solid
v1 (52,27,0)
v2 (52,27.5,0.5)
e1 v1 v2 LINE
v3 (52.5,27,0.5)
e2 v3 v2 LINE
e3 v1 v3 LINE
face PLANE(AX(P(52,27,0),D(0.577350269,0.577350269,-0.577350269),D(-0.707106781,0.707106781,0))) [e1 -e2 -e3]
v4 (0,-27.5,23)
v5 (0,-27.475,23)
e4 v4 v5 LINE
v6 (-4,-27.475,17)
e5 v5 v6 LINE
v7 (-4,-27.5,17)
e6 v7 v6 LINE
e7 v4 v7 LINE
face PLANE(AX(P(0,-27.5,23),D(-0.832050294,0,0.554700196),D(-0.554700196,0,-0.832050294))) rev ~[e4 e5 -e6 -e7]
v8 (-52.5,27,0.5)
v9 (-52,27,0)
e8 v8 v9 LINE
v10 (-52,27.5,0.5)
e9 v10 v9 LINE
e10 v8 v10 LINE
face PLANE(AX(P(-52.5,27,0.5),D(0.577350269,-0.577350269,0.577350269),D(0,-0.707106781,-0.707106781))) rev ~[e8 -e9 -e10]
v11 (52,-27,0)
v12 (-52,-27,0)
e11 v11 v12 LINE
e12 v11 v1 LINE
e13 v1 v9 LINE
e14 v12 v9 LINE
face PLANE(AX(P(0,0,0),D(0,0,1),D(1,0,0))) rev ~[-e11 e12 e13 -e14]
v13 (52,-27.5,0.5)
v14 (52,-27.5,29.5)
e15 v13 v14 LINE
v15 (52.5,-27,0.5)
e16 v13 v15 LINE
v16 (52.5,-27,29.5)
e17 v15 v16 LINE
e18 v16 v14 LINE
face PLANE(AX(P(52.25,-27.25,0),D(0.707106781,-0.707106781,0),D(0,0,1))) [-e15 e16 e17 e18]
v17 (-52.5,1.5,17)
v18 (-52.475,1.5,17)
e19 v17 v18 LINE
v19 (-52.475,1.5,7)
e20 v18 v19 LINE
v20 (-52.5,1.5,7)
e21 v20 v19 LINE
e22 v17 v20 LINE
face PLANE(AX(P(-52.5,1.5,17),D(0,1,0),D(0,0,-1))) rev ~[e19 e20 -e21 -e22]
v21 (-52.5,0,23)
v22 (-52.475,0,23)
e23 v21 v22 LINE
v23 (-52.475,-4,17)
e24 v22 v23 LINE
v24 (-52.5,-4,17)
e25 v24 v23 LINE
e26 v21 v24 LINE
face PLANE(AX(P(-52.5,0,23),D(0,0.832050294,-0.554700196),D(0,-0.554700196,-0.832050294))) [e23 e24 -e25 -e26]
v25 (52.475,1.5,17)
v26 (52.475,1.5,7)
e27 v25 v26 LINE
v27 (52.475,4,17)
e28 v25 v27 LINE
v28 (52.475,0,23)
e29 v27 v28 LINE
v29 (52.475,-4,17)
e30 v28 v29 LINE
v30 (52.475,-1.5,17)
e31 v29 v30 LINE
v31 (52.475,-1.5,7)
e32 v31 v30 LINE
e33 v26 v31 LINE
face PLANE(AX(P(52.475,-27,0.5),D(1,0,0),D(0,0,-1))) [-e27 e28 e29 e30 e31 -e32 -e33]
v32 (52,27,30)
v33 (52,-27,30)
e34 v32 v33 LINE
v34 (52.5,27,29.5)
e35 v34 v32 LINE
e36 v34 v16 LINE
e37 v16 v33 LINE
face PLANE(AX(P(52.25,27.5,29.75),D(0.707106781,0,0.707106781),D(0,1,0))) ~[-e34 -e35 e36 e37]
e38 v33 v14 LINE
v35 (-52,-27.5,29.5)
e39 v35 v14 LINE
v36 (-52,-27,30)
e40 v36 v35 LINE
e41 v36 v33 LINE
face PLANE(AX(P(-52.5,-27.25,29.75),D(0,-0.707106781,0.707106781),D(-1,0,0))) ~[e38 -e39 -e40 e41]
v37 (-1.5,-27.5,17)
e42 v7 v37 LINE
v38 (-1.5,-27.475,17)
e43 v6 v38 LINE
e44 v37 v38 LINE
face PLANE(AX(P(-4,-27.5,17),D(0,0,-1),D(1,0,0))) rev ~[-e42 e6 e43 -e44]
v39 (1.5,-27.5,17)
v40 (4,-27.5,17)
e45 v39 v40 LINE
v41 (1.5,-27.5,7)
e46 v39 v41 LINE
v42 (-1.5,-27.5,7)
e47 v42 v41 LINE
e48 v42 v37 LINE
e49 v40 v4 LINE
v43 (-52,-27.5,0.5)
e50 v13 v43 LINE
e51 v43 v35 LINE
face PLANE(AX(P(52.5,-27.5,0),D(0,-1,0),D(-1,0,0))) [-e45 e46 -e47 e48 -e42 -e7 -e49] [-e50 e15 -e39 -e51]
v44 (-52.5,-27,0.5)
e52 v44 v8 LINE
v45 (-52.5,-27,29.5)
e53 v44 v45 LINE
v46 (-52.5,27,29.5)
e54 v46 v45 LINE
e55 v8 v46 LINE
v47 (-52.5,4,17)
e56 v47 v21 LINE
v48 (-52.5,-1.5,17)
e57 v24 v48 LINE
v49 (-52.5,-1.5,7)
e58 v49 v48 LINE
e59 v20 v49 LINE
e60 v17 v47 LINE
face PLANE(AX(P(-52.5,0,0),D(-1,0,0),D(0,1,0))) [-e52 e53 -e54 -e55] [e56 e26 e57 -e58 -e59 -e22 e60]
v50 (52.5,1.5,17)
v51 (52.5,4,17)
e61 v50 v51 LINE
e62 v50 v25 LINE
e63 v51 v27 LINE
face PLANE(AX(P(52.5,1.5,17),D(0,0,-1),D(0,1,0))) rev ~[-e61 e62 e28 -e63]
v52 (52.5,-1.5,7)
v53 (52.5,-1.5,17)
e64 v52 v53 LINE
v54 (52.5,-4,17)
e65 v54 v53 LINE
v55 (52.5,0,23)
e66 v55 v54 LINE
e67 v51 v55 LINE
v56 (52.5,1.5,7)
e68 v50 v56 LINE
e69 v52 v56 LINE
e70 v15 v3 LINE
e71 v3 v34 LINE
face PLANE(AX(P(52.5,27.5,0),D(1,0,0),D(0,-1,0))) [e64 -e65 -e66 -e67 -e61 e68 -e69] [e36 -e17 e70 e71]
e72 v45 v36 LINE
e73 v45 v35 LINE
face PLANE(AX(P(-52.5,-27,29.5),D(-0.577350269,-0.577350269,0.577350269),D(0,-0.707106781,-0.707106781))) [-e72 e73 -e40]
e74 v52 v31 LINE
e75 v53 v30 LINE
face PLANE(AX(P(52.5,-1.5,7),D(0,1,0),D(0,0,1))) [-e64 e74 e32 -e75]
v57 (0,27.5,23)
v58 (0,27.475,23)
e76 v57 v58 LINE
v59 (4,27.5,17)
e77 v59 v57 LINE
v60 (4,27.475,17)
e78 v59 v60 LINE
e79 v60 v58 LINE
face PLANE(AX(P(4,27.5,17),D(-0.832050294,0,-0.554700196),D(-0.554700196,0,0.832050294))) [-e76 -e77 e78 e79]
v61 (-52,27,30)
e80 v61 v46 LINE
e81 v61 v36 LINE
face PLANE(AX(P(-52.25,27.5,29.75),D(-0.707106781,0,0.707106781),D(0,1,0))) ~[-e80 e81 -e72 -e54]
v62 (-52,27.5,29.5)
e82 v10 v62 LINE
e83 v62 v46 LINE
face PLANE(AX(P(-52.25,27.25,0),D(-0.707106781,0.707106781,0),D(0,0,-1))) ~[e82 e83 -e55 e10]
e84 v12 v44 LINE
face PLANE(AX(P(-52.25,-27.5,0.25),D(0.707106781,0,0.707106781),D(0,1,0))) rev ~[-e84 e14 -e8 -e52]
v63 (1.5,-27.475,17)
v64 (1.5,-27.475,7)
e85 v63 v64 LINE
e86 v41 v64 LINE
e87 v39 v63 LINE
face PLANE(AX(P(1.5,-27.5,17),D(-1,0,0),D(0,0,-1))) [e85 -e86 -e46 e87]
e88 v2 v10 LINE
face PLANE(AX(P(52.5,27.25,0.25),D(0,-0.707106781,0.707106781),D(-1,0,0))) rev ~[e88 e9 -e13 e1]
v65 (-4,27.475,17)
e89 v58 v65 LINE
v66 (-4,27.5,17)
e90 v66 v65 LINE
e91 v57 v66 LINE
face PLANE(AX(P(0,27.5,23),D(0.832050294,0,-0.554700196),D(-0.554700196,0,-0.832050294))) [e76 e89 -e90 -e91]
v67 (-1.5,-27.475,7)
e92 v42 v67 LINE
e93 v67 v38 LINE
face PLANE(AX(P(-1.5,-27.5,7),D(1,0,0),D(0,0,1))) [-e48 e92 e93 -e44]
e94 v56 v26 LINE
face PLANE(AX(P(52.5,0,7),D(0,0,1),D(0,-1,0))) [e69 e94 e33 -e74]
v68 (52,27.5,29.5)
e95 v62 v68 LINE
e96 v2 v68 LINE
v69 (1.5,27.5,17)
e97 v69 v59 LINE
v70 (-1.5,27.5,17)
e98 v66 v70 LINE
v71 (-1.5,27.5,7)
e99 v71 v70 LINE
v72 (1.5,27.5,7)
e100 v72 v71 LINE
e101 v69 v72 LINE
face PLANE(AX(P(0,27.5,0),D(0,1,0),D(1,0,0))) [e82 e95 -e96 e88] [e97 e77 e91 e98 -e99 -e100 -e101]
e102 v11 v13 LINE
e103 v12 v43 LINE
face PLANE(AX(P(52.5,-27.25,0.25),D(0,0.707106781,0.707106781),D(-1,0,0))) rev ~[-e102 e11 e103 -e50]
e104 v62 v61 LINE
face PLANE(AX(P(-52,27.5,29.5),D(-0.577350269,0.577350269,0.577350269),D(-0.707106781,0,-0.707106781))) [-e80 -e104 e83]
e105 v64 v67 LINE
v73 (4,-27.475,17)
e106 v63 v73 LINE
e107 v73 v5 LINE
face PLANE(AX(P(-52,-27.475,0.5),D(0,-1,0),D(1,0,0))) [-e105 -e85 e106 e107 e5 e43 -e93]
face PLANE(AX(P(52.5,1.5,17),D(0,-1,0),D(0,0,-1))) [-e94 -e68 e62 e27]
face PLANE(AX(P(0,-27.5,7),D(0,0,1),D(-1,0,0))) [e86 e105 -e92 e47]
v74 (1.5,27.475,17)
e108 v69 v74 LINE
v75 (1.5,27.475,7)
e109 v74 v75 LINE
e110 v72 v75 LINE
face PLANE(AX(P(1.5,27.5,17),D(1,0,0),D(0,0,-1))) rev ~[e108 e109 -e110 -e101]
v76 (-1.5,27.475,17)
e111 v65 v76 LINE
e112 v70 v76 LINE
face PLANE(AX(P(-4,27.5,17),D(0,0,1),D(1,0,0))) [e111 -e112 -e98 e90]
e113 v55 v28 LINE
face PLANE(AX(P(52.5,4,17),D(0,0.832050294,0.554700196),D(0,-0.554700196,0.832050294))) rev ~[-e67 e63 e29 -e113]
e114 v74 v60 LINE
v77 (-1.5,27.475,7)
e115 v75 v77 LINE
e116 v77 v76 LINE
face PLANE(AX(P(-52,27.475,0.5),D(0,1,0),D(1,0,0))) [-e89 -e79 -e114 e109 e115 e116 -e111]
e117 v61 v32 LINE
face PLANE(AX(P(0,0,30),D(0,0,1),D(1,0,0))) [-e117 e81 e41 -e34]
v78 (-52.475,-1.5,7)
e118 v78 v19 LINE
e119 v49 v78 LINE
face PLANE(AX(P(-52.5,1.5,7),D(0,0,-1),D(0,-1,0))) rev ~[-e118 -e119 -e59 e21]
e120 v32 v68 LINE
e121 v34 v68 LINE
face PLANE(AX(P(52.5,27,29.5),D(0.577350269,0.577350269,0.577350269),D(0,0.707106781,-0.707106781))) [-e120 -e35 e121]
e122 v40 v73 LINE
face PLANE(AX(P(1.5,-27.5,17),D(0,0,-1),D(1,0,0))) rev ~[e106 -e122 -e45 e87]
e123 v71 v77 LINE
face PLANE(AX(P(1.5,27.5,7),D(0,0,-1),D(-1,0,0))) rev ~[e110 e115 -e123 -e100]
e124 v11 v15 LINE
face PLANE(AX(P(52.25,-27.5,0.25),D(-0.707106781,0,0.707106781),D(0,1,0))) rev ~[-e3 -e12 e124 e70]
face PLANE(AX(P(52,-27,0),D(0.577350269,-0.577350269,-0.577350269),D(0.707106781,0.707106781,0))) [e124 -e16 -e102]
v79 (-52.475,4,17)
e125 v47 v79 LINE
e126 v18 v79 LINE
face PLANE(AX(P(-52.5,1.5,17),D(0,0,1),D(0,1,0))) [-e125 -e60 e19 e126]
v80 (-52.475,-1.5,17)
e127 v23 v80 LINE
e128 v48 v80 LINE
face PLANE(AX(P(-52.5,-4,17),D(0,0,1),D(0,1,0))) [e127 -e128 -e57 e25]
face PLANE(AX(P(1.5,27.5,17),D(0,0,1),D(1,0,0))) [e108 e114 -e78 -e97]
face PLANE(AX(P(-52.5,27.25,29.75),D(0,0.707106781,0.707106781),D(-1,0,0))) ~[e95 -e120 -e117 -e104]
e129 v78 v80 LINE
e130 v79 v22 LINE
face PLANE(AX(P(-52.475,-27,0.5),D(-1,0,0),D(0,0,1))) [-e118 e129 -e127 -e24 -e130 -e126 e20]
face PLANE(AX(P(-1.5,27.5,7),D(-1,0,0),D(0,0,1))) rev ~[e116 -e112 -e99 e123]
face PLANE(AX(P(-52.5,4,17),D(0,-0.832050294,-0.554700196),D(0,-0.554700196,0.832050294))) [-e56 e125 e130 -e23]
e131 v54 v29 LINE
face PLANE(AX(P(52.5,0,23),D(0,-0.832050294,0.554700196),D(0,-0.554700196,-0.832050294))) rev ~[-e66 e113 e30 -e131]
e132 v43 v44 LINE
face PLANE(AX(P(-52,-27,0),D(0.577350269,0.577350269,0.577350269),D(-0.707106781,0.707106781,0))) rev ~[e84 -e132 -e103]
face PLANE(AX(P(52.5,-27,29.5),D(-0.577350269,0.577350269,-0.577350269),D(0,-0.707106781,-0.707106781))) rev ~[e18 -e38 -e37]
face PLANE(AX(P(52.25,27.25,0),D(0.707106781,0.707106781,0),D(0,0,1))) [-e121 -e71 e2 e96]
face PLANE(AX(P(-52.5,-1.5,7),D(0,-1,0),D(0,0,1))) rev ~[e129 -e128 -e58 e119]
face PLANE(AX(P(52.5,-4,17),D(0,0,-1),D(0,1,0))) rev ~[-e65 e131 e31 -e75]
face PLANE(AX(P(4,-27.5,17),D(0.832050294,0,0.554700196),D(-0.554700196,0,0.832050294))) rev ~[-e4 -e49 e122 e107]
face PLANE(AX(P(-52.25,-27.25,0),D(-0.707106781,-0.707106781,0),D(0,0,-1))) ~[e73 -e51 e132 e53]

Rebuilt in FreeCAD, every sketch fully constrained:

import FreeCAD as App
import Part
import Sketcher
Q = App.Units.Quantity

doc = App.newDocument("Part")
body = doc.addObject("PartDesign::Body", "Body")

# Sketch on XY plane
sketch1 = body.newObject("Sketcher::SketchObject", "Sketch")
sketch1.AttachmentSupport = (doc.getObject("XY_Plane"), [""])
sketch1.MapMode = "FlatFace"
sketch1.addGeometry([
    Part.LineSegment(App.Vector(52.5, 27.5, 0), App.Vector(-52.5, 27.5, 0)),
    Part.LineSegment(App.Vector(-52.5, 27.5, 0), App.Vector(-52.5, -27.5, 0)),
    Part.LineSegment(App.Vector(-52.5, -27.5, 0), App.Vector(52.5, -27.5, 0)),
    Part.LineSegment(App.Vector(52.5, -27.5, 0), App.Vector(52.5, 27.5, 0)),
], False)
sketch1.addConstraint([
    Sketcher.Constraint("Coincident", 0, 2, 1, 1),
    Sketcher.Constraint("Coincident", 1, 2, 2, 1),
    Sketcher.Constraint("Coincident", 2, 2, 3, 1),
    Sketcher.Constraint("Coincident", 3, 2, 0, 1),
    Sketcher.Constraint("Horizontal", 0),
    Sketcher.Constraint("Vertical", 1),
    Sketcher.Constraint("Horizontal", 2),
    Sketcher.Constraint("Vertical", 3),
    Sketcher.Constraint("Symmetric", 0, 2, 2, 2, -1, 1),
    Sketcher.Constraint("DistanceX", 0, 2, 0, 1, Q("105 mm")),
    Sketcher.Constraint("DistanceY", 1, 2, 1, 1, Q("55 mm")),
])
pad1 = body.newObject("PartDesign::Pad", "Pad")
pad1.Profile = sketch1
pad1.Length = 30
doc.recompute()

chamfer = body.newObject("PartDesign::Chamfer", "Chamfer")
chamfer.Base = (pad1, ["Edge1"])
chamfer.UseAllEdges = True
chamfer.Size = 0.5

# Sketch on XZ plane
sketch2 = body.newObject("Sketcher::SketchObject", "Sketch001")
sketch2.AttachmentSupport = (doc.getObject("XZ_Plane"), [""])
sketch2.MapMode = "FlatFace"
sketch2.AttachmentOffset = App.Placement(App.Vector(0, 0, 27.5), App.Rotation())
sketch2.addGeometry([
    Part.LineSegment(App.Vector(-4, 17, 0), App.Vector(-1.5, 17, 0)),  # 0
    Part.LineSegment(App.Vector(-1.5, 17, 0), App.Vector(-1.5, 7, 0)),  # 1
    Part.LineSegment(App.Vector(-1.5, 7, 0), App.Vector(1.5, 7, 0)),  # 2
    Part.LineSegment(App.Vector(1.5, 7, 0), App.Vector(1.5, 17, 0)),  # 3
    Part.LineSegment(App.Vector(1.5, 17, 0), App.Vector(4, 17, 0)),  # 4
    Part.LineSegment(App.Vector(4, 17, 0), App.Vector(0, 23, 0)),  # 5
    Part.LineSegment(App.Vector(0, 23, 0), App.Vector(-4, 17, 0)),  # 6
], False)
sketch2.addConstraint([
    Sketcher.Constraint("Coincident", 0, 2, 1, 1),
    Sketcher.Constraint("Coincident", 1, 2, 2, 1),
    Sketcher.Constraint("Coincident", 2, 2, 3, 1),
    Sketcher.Constraint("Coincident", 3, 2, 4, 1),
    Sketcher.Constraint("Coincident", 4, 2, 5, 1),
    Sketcher.Constraint("Coincident", 5, 2, 6, 1),
    Sketcher.Constraint("Coincident", 6, 2, 0, 1),
    Sketcher.Constraint("Horizontal", 0),
    Sketcher.Constraint("Vertical", 1),
    Sketcher.Constraint("Horizontal", 2),
    Sketcher.Constraint("Vertical", 3),
    Sketcher.Constraint("Horizontal", 4),
    Sketcher.Constraint("Symmetric", 0, 2, 3, 2, -2),
    Sketcher.Constraint("PointOnObject", 5, 2, -2),
    Sketcher.Constraint("Equal", 0, 4),
    Sketcher.Constraint("DistanceX", 2, 1, 2, 2, Q("3 mm")),
    Sketcher.Constraint("DistanceY", 1, 2, 1, 1, Q("10 mm")),
    Sketcher.Constraint("DistanceY", -1, 1, 1, 2, Q("7 mm")),
    Sketcher.Constraint("DistanceX", -1, 1, 4, 2, Q("4 mm")),
    Sketcher.Constraint("DistanceY", 0, 2, 5, 2, Q("6 mm")),
])
pocket1 = body.newObject("PartDesign::Pocket", "Pocket")
pocket1.Profile = sketch2
pocket1.Length = 0.025

# Sketch on XZ plane
sketch3 = body.newObject("Sketcher::SketchObject", "Sketch002")
sketch3.AttachmentSupport = (doc.getObject("XZ_Plane"), [""])
sketch3.MapMode = "FlatFace"
sketch3.AttachmentOffset = App.Placement(App.Vector(0, 0, -27.5), App.Rotation())
sketch3.addGeometry([
    Part.LineSegment(App.Vector(1.5, 17, 0), App.Vector(1.5, 7, 0)),  # 0
    Part.LineSegment(App.Vector(1.5, 7, 0), App.Vector(-1.5, 7, 0)),  # 1
    Part.LineSegment(App.Vector(-1.5, 7, 0), App.Vector(-1.5, 17, 0)),  # 2
    Part.LineSegment(App.Vector(-1.5, 17, 0), App.Vector(-4, 17, 0)),  # 3
    Part.LineSegment(App.Vector(-4, 17, 0), App.Vector(0, 23, 0)),  # 4
    Part.LineSegment(App.Vector(0, 23, 0), App.Vector(4, 17, 0)),  # 5
    Part.LineSegment(App.Vector(4, 17, 0), App.Vector(1.5, 17, 0)),  # 6
], False)
sketch3.addConstraint([
    Sketcher.Constraint("Coincident", 0, 2, 1, 1),
    Sketcher.Constraint("Coincident", 1, 2, 2, 1),
    Sketcher.Constraint("Coincident", 2, 2, 3, 1),
    Sketcher.Constraint("Coincident", 3, 2, 4, 1),
    Sketcher.Constraint("Coincident", 4, 2, 5, 1),
    Sketcher.Constraint("Coincident", 5, 2, 6, 1),
    Sketcher.Constraint("Coincident", 6, 2, 0, 1),
    Sketcher.Constraint("Vertical", 0),
    Sketcher.Constraint("Horizontal", 1),
    Sketcher.Constraint("Vertical", 2),
    Sketcher.Constraint("Horizontal", 3),
    Sketcher.Constraint("Horizontal", 6),
    Sketcher.Constraint("Symmetric", 3, 2, 5, 2, -2),
    Sketcher.Constraint("PointOnObject", 4, 2, -2),
    Sketcher.Constraint("Equal", 3, 6),
    Sketcher.Constraint("DistanceX", 1, 2, 1, 1, Q("3 mm")),
    Sketcher.Constraint("DistanceY", -1, 1, 0, 2, Q("7 mm")),
    Sketcher.Constraint("DistanceY", 0, 2, 0, 1, Q("10 mm")),
    Sketcher.Constraint("DistanceX", 3, 2, 3, 1, Q("2.5 mm")),
    Sketcher.Constraint("DistanceY", -1, 1, 4, 2, Q("23 mm")),
])
pocket2 = body.newObject("PartDesign::Pocket", "Pocket001")
pocket2.Profile = sketch3
pocket2.Length = 0.025
pocket2.Reversed = True

# Sketch on YZ plane
sketch4 = body.newObject("Sketcher::SketchObject", "Sketch003")
sketch4.AttachmentSupport = (doc.getObject("YZ_Plane"), [""])
sketch4.MapMode = "FlatFace"
sketch4.AttachmentOffset = App.Placement(App.Vector(0, 0, 52.5), App.Rotation())
sketch4.addGeometry([
    Part.LineSegment(App.Vector(-4, 17, 0), App.Vector(-1.5, 17, 0)),  # 0
    Part.LineSegment(App.Vector(-1.5, 17, 0), App.Vector(-1.5, 7, 0)),  # 1
    Part.LineSegment(App.Vector(-1.5, 7, 0), App.Vector(1.5, 7, 0)),  # 2
    Part.LineSegment(App.Vector(1.5, 7, 0), App.Vector(1.5, 17, 0)),  # 3
    Part.LineSegment(App.Vector(1.5, 17, 0), App.Vector(4, 17, 0)),  # 4
    Part.LineSegment(App.Vector(4, 17, 0), App.Vector(0, 23, 0)),  # 5
    Part.LineSegment(App.Vector(0, 23, 0), App.Vector(-4, 17, 0)),  # 6
], False)
sketch4.addConstraint([
    Sketcher.Constraint("Coincident", 0, 2, 1, 1),
    Sketcher.Constraint("Coincident", 1, 2, 2, 1),
    Sketcher.Constraint("Coincident", 2, 2, 3, 1),
    Sketcher.Constraint("Coincident", 3, 2, 4, 1),
    Sketcher.Constraint("Coincident", 4, 2, 5, 1),
    Sketcher.Constraint("Coincident", 5, 2, 6, 1),
    Sketcher.Constraint("Coincident", 6, 2, 0, 1),
    Sketcher.Constraint("Horizontal", 0),
    Sketcher.Constraint("Vertical", 1),
    Sketcher.Constraint("Horizontal", 2),
    Sketcher.Constraint("Vertical", 3),
    Sketcher.Constraint("Horizontal", 4),
    Sketcher.Constraint("Symmetric", 0, 2, 3, 2, -2),
    Sketcher.Constraint("PointOnObject", 5, 2, -2),
    Sketcher.Constraint("Equal", 0, 4),
    Sketcher.Constraint("DistanceX", 2, 1, 2, 2, Q("3 mm")),
    Sketcher.Constraint("DistanceY", -1, 1, 1, 2, Q("7 mm")),
    Sketcher.Constraint("DistanceY", 0, 2, 5, 2, Q("6 mm")),
    Sketcher.Constraint("DistanceY", 1, 2, 5, 2, Q("16 mm")),
    Sketcher.Constraint("DistanceX", 6, 2, 4, 2, Q("8 mm")),
])
pocket3 = body.newObject("PartDesign::Pocket", "Pocket002")
pocket3.Profile = sketch4
pocket3.Length = 0.025

# Sketch on YZ plane
sketch5 = body.newObject("Sketcher::SketchObject", "Sketch004")
sketch5.AttachmentSupport = (doc.getObject("YZ_Plane"), [""])
sketch5.MapMode = "FlatFace"
sketch5.AttachmentOffset = App.Placement(App.Vector(0, 0, -52.5), App.Rotation())
sketch5.addGeometry([
    Part.LineSegment(App.Vector(4, 17, 0), App.Vector(1.5, 17, 0)),  # 0
    Part.LineSegment(App.Vector(1.5, 17, 0), App.Vector(1.5, 7, 0)),  # 1
    Part.LineSegment(App.Vector(1.5, 7, 0), App.Vector(-1.5, 7, 0)),  # 2
    Part.LineSegment(App.Vector(-1.5, 7, 0), App.Vector(-1.5, 17, 0)),  # 3
    Part.LineSegment(App.Vector(-1.5, 17, 0), App.Vector(-4, 17, 0)),  # 4
    Part.LineSegment(App.Vector(-4, 17, 0), App.Vector(0, 23, 0)),  # 5
    Part.LineSegment(App.Vector(0, 23, 0), App.Vector(4, 17, 0)),  # 6
], False)
sketch5.addConstraint([
    Sketcher.Constraint("Coincident", 0, 2, 1, 1),
    Sketcher.Constraint("Coincident", 1, 2, 2, 1),
    Sketcher.Constraint("Coincident", 2, 2, 3, 1),
    Sketcher.Constraint("Coincident", 3, 2, 4, 1),
    Sketcher.Constraint("Coincident", 4, 2, 5, 1),
    Sketcher.Constraint("Coincident", 5, 2, 6, 1),
    Sketcher.Constraint("Coincident", 6, 2, 0, 1),
    Sketcher.Constraint("Horizontal", 0),
    Sketcher.Constraint("Vertical", 1),
    Sketcher.Constraint("Horizontal", 2),
    Sketcher.Constraint("Vertical", 3),
    Sketcher.Constraint("Horizontal", 4),
    Sketcher.Constraint("Symmetric", 0, 2, 3, 2, -2),
    Sketcher.Constraint("PointOnObject", 5, 2, -2),
    Sketcher.Constraint("Equal", 0, 4),
    Sketcher.Constraint("DistanceX", 2, 2, 2, 1, Q("3 mm")),
    Sketcher.Constraint("DistanceY", -1, 1, 1, 2, Q("7 mm")),
    Sketcher.Constraint("DistanceY", 0, 2, 5, 2, Q("6 mm")),
    Sketcher.Constraint("DistanceY", 1, 2, 5, 2, Q("16 mm")),
    Sketcher.Constraint("DistanceX", 0, 2, 0, 1, Q("2.5 mm")),
])
pocket4 = body.newObject("PartDesign::Pocket", "Pocket003")
pocket4.Profile = sketch5
pocket4.Length = 0.025
pocket4.Reversed = True

doc.recompute()
